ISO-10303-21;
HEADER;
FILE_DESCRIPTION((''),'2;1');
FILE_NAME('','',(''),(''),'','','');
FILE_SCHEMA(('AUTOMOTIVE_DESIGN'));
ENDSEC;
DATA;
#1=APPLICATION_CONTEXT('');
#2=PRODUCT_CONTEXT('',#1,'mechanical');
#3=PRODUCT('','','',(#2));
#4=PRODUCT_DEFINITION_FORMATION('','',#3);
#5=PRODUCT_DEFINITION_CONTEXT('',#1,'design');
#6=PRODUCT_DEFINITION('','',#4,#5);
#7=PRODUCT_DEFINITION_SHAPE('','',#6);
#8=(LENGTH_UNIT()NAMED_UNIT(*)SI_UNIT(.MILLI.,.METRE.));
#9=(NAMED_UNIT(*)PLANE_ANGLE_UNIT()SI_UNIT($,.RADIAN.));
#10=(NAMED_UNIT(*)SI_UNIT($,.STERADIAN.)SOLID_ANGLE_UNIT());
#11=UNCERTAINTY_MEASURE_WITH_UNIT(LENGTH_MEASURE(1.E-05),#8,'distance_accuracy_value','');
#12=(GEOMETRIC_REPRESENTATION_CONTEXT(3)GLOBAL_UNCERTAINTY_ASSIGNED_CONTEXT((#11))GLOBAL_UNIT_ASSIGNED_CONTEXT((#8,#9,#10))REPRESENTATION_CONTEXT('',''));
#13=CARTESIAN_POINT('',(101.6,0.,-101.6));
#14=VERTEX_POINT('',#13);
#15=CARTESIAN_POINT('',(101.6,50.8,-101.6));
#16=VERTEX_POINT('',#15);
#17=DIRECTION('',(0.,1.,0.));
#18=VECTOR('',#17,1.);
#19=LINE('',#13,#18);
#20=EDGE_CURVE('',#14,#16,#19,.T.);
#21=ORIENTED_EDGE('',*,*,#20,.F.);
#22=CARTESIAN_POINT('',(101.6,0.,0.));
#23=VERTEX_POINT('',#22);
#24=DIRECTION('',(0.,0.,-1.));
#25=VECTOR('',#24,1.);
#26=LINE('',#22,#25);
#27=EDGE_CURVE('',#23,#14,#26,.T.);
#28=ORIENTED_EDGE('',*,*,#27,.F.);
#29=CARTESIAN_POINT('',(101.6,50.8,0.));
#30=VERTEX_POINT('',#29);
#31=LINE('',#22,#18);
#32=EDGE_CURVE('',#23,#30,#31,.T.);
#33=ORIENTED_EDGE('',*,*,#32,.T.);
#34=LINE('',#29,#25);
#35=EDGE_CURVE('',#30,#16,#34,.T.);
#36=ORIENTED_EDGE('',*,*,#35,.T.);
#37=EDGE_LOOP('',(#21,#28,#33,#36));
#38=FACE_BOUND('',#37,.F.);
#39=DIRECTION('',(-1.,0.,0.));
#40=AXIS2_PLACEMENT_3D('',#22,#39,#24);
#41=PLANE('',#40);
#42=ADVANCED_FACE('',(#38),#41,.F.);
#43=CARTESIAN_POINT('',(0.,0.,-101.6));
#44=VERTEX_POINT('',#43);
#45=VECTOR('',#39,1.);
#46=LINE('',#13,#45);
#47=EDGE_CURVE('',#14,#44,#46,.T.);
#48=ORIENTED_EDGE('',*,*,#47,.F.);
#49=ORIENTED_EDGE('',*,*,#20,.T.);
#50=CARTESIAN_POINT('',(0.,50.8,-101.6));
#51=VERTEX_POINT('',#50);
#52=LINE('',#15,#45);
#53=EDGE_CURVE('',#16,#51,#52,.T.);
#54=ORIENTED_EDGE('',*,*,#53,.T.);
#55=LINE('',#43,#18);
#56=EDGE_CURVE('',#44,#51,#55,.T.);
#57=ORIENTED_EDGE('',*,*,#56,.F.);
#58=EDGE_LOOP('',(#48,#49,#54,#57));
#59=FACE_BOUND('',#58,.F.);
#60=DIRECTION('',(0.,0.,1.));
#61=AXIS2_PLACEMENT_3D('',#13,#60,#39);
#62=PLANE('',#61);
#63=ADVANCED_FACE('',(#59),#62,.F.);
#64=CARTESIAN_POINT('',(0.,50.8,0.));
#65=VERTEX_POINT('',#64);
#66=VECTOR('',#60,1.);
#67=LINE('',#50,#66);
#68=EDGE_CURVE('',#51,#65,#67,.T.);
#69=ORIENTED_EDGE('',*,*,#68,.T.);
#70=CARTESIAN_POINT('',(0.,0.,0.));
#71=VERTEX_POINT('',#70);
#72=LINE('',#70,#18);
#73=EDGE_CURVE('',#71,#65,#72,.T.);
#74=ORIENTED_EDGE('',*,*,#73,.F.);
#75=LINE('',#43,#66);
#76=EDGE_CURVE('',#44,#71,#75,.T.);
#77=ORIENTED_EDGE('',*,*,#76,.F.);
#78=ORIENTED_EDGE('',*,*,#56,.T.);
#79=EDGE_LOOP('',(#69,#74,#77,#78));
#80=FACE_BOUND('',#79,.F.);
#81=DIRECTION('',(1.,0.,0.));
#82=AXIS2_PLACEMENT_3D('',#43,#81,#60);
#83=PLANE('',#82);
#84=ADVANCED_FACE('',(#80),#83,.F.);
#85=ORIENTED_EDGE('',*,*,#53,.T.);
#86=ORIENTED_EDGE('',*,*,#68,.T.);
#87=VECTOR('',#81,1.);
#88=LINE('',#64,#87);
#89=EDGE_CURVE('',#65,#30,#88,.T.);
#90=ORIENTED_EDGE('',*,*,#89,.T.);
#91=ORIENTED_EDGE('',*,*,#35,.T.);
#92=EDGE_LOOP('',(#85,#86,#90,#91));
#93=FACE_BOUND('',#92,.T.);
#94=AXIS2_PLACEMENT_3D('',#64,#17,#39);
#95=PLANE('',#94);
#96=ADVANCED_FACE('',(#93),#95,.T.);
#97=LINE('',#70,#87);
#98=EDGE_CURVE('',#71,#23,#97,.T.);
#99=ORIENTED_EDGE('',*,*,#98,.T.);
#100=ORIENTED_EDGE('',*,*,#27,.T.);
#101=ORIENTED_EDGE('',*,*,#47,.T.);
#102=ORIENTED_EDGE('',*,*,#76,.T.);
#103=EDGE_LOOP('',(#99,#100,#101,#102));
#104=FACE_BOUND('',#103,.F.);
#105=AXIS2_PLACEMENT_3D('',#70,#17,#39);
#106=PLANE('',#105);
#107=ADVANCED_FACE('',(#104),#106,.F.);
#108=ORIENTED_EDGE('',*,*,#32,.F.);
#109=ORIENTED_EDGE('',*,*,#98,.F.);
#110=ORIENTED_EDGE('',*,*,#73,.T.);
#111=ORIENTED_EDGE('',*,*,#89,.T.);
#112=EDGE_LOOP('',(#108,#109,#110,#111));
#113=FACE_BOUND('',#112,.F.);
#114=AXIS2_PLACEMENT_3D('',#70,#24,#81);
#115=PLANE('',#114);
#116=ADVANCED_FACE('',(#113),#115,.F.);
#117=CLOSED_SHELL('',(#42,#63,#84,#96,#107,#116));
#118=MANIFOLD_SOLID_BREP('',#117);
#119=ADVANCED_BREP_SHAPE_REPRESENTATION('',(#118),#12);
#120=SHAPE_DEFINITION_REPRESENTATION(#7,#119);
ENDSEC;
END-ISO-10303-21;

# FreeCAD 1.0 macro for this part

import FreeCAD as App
import Part
import Sketcher
Q = App.Units.Quantity

doc = App.newDocument("Part")
body = doc.addObject("PartDesign::Body", "Body")

# Sketch on XZ plane
sketch1 = body.newObject("Sketcher::SketchObject", "Sketch")
sketch1.AttachmentSupport = (doc.getObject("XZ_Plane"), [""])
sketch1.MapMode = "FlatFace"
sketch1.addGeometry([
    Part.LineSegment(App.Vector(0, -102, 0), App.Vector(0, 0, 0)),
    Part.LineSegment(App.Vector(0, 0, 0), App.Vector(102, 0, 0)),
    Part.LineSegment(App.Vector(102, 0, 0), App.Vector(102, -102, 0)),
    Part.LineSegment(App.Vector(102, -102, 0), App.Vector(0, -102, 0)),
], False)
sketch1.addConstraint([
    Sketcher.Constraint("Coincident", 0, 2, 1, 1),
    Sketcher.Constraint("Coincident", 1, 2, 2, 1),
    Sketcher.Constraint("Coincident", 2, 2, 3, 1),
    Sketcher.Constraint("Coincident", 3, 2, 0, 1),
    Sketcher.Constraint("Vertical", 0),
    Sketcher.Constraint("Horizontal", 1),
    Sketcher.Constraint("Vertical", 2),
    Sketcher.Constraint("Horizontal", 3),
    Sketcher.Constraint("Coincident", 0, 2, -1, 1),
    Sketcher.Constraint("Equal", 3, 0),
    Sketcher.Constraint("DistanceX", 1, 1, 1, 2, Q("4 in")),
])
pad1 = body.newObject("PartDesign::Pad", "Pad")
pad1.Profile = sketch1
pad1.Length = Q("2 in")
pad1.Reversed = True

doc.recompute()
